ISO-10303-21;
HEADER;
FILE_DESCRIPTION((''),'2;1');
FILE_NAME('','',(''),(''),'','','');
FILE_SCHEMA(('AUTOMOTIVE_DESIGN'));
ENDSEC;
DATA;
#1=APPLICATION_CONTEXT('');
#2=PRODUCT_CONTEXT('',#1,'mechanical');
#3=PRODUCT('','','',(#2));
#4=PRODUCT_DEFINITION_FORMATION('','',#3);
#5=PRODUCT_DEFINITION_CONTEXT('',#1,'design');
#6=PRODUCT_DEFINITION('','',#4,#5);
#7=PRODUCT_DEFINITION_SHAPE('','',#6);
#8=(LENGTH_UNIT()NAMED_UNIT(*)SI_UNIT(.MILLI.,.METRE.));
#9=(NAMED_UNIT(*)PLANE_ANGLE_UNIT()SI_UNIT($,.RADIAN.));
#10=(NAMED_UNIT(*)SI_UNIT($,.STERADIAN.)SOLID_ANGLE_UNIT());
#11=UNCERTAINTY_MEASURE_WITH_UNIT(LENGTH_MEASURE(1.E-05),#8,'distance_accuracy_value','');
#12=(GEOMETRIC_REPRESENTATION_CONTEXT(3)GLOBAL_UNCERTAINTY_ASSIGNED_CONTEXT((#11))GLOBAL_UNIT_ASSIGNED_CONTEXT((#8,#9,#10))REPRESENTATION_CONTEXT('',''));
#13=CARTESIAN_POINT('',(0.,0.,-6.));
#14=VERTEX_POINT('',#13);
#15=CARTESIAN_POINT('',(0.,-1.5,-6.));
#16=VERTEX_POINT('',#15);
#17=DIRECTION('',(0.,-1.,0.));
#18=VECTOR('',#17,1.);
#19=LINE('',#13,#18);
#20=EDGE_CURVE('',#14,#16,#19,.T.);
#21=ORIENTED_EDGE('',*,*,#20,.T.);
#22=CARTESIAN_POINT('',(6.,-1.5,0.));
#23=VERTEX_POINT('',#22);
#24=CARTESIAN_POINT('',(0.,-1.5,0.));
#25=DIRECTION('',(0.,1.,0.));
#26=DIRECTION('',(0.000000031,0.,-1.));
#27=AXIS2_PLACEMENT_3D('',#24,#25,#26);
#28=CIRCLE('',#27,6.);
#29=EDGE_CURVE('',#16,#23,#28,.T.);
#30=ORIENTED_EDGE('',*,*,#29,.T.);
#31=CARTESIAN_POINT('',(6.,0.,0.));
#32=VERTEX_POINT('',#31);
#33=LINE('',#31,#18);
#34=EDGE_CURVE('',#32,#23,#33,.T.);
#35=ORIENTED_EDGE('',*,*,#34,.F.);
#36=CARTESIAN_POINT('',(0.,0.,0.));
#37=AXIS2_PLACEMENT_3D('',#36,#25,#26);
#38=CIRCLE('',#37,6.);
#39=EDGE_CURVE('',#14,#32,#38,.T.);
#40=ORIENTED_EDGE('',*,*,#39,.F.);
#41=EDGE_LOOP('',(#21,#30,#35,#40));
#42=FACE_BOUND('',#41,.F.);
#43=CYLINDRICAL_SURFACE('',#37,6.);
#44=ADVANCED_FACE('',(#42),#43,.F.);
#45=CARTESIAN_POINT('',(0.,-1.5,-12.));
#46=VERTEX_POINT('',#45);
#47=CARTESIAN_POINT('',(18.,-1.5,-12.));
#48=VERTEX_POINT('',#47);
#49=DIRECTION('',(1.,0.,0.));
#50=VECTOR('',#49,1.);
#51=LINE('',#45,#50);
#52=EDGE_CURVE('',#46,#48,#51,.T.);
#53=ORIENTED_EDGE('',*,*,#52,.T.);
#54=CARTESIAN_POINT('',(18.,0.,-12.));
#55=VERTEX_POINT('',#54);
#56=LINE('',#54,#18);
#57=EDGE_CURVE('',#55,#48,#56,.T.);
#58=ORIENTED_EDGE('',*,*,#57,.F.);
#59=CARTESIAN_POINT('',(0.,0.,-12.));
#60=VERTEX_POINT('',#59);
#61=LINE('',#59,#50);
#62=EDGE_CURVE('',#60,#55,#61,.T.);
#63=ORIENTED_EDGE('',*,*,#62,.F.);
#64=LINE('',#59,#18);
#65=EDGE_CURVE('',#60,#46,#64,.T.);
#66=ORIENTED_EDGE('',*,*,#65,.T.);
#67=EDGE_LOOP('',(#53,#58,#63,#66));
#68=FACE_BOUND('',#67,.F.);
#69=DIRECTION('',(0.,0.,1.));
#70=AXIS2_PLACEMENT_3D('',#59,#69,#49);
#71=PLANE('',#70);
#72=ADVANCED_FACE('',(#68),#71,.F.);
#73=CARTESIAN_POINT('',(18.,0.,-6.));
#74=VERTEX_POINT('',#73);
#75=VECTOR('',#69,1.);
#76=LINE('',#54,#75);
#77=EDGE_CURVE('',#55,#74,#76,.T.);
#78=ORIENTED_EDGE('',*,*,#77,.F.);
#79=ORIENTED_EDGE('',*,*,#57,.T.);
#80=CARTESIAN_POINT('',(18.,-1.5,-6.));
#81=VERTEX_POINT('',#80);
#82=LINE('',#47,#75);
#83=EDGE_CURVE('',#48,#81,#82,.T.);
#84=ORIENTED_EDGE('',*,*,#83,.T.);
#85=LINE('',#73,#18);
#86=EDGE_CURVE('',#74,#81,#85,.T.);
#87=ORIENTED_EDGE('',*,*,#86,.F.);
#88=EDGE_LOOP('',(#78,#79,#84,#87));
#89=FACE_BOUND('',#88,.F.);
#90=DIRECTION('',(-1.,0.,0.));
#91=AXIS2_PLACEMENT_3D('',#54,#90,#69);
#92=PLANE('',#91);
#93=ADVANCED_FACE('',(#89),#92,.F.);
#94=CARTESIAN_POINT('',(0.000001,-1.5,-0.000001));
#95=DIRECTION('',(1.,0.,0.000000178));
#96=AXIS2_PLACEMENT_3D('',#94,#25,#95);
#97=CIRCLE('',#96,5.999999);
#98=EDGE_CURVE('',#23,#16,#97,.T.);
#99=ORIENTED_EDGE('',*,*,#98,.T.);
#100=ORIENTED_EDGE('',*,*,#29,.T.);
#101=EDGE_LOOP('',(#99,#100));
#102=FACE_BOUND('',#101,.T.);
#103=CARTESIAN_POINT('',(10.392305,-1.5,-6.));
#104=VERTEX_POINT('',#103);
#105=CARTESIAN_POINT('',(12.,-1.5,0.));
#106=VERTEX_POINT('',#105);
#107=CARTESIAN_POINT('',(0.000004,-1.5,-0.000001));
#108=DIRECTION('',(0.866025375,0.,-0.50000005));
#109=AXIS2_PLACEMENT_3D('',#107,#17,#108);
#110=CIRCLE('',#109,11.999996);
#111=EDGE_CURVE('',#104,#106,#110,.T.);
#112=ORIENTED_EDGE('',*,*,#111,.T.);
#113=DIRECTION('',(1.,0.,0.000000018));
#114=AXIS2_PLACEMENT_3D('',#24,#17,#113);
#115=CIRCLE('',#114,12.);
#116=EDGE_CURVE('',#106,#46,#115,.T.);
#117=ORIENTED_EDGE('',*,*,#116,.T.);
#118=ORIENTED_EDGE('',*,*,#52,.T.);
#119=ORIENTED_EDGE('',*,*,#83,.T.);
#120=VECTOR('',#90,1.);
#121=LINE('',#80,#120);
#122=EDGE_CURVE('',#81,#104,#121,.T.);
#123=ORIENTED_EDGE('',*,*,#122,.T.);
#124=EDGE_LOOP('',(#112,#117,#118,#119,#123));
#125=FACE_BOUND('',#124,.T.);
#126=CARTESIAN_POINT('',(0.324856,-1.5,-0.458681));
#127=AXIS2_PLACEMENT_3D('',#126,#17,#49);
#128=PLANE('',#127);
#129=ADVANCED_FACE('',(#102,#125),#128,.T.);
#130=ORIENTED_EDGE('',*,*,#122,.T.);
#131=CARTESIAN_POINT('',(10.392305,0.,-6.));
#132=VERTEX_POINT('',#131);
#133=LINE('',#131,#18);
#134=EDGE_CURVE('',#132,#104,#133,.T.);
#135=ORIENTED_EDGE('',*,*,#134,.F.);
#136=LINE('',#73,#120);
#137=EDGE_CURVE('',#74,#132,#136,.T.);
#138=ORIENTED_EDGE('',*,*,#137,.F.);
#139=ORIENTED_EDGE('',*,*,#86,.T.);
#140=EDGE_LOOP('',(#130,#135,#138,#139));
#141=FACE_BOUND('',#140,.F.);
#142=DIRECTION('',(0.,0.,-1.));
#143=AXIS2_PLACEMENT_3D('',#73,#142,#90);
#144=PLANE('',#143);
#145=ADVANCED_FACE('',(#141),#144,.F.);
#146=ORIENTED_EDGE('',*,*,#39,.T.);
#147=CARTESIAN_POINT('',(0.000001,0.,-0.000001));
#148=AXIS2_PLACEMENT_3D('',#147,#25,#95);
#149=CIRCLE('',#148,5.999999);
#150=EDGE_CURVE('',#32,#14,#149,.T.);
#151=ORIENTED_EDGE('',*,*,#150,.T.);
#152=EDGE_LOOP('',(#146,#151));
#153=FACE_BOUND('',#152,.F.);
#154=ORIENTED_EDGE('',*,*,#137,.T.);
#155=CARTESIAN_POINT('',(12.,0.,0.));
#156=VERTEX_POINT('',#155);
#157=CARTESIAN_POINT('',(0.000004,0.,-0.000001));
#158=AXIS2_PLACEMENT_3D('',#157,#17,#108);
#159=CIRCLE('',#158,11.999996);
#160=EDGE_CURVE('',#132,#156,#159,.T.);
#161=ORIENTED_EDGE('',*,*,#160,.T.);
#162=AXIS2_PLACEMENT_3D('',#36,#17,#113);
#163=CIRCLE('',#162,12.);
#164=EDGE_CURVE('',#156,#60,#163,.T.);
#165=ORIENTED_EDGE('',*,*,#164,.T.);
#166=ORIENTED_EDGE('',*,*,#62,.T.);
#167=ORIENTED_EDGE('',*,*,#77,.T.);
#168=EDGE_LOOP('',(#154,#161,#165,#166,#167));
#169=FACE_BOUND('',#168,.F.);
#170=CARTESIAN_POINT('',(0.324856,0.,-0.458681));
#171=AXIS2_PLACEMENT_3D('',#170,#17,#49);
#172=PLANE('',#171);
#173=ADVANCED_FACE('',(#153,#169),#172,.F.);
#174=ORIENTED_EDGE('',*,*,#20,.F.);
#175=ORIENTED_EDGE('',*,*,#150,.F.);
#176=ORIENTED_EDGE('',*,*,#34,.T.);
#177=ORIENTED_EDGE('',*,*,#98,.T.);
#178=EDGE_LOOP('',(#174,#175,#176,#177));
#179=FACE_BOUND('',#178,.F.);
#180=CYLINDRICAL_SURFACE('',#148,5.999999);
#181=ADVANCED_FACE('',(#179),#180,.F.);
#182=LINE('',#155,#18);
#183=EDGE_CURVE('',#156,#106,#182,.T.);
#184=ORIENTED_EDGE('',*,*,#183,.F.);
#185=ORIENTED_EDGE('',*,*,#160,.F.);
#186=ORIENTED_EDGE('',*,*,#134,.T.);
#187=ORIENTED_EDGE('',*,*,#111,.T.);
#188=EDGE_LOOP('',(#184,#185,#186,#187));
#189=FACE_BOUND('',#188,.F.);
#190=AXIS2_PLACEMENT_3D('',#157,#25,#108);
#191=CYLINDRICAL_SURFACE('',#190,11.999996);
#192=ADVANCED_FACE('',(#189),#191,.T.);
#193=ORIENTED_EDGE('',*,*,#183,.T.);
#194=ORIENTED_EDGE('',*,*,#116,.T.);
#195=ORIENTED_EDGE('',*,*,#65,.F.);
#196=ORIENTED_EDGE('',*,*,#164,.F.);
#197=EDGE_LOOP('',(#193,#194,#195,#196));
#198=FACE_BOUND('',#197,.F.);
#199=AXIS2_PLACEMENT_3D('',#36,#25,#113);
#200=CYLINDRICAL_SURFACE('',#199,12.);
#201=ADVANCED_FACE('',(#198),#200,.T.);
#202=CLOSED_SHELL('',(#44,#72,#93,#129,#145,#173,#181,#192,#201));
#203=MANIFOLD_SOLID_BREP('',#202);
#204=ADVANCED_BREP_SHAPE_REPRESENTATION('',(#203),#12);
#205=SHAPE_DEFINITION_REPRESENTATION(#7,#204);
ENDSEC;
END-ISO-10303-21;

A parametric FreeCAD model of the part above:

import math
import FreeCAD as App
import Part
import Sketcher

V = App.Vector

doc = App.newDocument("Part")
body = doc.addObject("PartDesign::Body", "Body")

sketch1 = doc.addObject("Sketcher::SketchObject", "Sketch")
body.addObject(sketch1)
sketch1.AttachmentSupport = (doc.XZ_Plane, [""])
sketch1.MapMode = "FlatFace"
sketch1.addGeometry(Part.ArcOfCircle(Part.Circle(V(0, 0, 0), V(0, 0, 1), 12), math.radians(0), math.radians(270)), False)
sketch1.addGeometry(Part.LineSegment(V(0, -12, 0), V(18, -12, 0)), False)
sketch1.addGeometry(Part.LineSegment(V(18, -12, 0), V(18, -6, 0)), False)
sketch1.addGeometry(Part.LineSegment(V(18, -6, 0), V(10, -6, 0)), False)
sketch1.addGeometry(Part.ArcOfCircle(Part.Circle(V(0, 0, 0), V(0, 0, 1), 12), math.radians(-30), math.radians(0)), False)
sketch1.addGeometry(Part.ArcOfCircle(Part.Circle(V(0, 0, 0), V(0, 0, 1), 6), math.radians(-90), math.radians(0)), False)
sketch1.addGeometry(Part.ArcOfCircle(Part.Circle(V(0, 0, 0), V(0, 0, 1), 6), math.radians(0), math.radians(270)), False)
sketch1.addConstraint(Sketcher.Constraint("Tangent", 0, 2, 1, 1))
sketch1.addConstraint(Sketcher.Constraint("Coincident", 1, 2, 2, 1))
sketch1.addConstraint(Sketcher.Constraint("Coincident", 2, 2, 3, 1))
sketch1.addConstraint(Sketcher.Constraint("Coincident", 3, 2, 4, 1))
sketch1.addConstraint(Sketcher.Constraint("Tangent", 4, 2, 0, 1))
sketch1.addConstraint(Sketcher.Constraint("Tangent", 5, 1, 6, 2))
sketch1.addConstraint(Sketcher.Constraint("Coincident", 6, 1, 5, 2))
sketch1.addConstraint(Sketcher.Constraint("Horizontal", 1))
sketch1.addConstraint(Sketcher.Constraint("Vertical", 2))
sketch1.addConstraint(Sketcher.Constraint("Horizontal", 3))
sketch1.addConstraint(Sketcher.Constraint("Coincident", 0, 3, -1, 1))
sketch1.addConstraint(Sketcher.Constraint("Coincident", 5, 3, -1, 1))
sketch1.addConstraint(Sketcher.Constraint("PointOnObject", 4, 2, -1))
sketch1.addConstraint(Sketcher.Constraint("PointOnObject", 5, 1, -2))
sketch1.addConstraint(Sketcher.Constraint("PointOnObject", 6, 1, -1))
sketch1.addConstraint(Sketcher.Constraint("Horizontal", 3, 2, 5, 1))
sketch1.addConstraint(Sketcher.Constraint("Radius", 0, 12.0))
sketch1.addConstraint(Sketcher.Constraint("Radius", 5, 5.999999))
sketch1.addConstraint(Sketcher.Constraint("DistanceX", 1, 1, 1, 2, 18.0))
sketch1.addConstraint(Sketcher.Constraint("Radius", 4, 11.999996))
pad1 = doc.addObject("PartDesign::Pad", "Pad")
body.addObject(pad1)
pad1.Profile = sketch1
pad1.Length = 1.5

doc.recompute()
